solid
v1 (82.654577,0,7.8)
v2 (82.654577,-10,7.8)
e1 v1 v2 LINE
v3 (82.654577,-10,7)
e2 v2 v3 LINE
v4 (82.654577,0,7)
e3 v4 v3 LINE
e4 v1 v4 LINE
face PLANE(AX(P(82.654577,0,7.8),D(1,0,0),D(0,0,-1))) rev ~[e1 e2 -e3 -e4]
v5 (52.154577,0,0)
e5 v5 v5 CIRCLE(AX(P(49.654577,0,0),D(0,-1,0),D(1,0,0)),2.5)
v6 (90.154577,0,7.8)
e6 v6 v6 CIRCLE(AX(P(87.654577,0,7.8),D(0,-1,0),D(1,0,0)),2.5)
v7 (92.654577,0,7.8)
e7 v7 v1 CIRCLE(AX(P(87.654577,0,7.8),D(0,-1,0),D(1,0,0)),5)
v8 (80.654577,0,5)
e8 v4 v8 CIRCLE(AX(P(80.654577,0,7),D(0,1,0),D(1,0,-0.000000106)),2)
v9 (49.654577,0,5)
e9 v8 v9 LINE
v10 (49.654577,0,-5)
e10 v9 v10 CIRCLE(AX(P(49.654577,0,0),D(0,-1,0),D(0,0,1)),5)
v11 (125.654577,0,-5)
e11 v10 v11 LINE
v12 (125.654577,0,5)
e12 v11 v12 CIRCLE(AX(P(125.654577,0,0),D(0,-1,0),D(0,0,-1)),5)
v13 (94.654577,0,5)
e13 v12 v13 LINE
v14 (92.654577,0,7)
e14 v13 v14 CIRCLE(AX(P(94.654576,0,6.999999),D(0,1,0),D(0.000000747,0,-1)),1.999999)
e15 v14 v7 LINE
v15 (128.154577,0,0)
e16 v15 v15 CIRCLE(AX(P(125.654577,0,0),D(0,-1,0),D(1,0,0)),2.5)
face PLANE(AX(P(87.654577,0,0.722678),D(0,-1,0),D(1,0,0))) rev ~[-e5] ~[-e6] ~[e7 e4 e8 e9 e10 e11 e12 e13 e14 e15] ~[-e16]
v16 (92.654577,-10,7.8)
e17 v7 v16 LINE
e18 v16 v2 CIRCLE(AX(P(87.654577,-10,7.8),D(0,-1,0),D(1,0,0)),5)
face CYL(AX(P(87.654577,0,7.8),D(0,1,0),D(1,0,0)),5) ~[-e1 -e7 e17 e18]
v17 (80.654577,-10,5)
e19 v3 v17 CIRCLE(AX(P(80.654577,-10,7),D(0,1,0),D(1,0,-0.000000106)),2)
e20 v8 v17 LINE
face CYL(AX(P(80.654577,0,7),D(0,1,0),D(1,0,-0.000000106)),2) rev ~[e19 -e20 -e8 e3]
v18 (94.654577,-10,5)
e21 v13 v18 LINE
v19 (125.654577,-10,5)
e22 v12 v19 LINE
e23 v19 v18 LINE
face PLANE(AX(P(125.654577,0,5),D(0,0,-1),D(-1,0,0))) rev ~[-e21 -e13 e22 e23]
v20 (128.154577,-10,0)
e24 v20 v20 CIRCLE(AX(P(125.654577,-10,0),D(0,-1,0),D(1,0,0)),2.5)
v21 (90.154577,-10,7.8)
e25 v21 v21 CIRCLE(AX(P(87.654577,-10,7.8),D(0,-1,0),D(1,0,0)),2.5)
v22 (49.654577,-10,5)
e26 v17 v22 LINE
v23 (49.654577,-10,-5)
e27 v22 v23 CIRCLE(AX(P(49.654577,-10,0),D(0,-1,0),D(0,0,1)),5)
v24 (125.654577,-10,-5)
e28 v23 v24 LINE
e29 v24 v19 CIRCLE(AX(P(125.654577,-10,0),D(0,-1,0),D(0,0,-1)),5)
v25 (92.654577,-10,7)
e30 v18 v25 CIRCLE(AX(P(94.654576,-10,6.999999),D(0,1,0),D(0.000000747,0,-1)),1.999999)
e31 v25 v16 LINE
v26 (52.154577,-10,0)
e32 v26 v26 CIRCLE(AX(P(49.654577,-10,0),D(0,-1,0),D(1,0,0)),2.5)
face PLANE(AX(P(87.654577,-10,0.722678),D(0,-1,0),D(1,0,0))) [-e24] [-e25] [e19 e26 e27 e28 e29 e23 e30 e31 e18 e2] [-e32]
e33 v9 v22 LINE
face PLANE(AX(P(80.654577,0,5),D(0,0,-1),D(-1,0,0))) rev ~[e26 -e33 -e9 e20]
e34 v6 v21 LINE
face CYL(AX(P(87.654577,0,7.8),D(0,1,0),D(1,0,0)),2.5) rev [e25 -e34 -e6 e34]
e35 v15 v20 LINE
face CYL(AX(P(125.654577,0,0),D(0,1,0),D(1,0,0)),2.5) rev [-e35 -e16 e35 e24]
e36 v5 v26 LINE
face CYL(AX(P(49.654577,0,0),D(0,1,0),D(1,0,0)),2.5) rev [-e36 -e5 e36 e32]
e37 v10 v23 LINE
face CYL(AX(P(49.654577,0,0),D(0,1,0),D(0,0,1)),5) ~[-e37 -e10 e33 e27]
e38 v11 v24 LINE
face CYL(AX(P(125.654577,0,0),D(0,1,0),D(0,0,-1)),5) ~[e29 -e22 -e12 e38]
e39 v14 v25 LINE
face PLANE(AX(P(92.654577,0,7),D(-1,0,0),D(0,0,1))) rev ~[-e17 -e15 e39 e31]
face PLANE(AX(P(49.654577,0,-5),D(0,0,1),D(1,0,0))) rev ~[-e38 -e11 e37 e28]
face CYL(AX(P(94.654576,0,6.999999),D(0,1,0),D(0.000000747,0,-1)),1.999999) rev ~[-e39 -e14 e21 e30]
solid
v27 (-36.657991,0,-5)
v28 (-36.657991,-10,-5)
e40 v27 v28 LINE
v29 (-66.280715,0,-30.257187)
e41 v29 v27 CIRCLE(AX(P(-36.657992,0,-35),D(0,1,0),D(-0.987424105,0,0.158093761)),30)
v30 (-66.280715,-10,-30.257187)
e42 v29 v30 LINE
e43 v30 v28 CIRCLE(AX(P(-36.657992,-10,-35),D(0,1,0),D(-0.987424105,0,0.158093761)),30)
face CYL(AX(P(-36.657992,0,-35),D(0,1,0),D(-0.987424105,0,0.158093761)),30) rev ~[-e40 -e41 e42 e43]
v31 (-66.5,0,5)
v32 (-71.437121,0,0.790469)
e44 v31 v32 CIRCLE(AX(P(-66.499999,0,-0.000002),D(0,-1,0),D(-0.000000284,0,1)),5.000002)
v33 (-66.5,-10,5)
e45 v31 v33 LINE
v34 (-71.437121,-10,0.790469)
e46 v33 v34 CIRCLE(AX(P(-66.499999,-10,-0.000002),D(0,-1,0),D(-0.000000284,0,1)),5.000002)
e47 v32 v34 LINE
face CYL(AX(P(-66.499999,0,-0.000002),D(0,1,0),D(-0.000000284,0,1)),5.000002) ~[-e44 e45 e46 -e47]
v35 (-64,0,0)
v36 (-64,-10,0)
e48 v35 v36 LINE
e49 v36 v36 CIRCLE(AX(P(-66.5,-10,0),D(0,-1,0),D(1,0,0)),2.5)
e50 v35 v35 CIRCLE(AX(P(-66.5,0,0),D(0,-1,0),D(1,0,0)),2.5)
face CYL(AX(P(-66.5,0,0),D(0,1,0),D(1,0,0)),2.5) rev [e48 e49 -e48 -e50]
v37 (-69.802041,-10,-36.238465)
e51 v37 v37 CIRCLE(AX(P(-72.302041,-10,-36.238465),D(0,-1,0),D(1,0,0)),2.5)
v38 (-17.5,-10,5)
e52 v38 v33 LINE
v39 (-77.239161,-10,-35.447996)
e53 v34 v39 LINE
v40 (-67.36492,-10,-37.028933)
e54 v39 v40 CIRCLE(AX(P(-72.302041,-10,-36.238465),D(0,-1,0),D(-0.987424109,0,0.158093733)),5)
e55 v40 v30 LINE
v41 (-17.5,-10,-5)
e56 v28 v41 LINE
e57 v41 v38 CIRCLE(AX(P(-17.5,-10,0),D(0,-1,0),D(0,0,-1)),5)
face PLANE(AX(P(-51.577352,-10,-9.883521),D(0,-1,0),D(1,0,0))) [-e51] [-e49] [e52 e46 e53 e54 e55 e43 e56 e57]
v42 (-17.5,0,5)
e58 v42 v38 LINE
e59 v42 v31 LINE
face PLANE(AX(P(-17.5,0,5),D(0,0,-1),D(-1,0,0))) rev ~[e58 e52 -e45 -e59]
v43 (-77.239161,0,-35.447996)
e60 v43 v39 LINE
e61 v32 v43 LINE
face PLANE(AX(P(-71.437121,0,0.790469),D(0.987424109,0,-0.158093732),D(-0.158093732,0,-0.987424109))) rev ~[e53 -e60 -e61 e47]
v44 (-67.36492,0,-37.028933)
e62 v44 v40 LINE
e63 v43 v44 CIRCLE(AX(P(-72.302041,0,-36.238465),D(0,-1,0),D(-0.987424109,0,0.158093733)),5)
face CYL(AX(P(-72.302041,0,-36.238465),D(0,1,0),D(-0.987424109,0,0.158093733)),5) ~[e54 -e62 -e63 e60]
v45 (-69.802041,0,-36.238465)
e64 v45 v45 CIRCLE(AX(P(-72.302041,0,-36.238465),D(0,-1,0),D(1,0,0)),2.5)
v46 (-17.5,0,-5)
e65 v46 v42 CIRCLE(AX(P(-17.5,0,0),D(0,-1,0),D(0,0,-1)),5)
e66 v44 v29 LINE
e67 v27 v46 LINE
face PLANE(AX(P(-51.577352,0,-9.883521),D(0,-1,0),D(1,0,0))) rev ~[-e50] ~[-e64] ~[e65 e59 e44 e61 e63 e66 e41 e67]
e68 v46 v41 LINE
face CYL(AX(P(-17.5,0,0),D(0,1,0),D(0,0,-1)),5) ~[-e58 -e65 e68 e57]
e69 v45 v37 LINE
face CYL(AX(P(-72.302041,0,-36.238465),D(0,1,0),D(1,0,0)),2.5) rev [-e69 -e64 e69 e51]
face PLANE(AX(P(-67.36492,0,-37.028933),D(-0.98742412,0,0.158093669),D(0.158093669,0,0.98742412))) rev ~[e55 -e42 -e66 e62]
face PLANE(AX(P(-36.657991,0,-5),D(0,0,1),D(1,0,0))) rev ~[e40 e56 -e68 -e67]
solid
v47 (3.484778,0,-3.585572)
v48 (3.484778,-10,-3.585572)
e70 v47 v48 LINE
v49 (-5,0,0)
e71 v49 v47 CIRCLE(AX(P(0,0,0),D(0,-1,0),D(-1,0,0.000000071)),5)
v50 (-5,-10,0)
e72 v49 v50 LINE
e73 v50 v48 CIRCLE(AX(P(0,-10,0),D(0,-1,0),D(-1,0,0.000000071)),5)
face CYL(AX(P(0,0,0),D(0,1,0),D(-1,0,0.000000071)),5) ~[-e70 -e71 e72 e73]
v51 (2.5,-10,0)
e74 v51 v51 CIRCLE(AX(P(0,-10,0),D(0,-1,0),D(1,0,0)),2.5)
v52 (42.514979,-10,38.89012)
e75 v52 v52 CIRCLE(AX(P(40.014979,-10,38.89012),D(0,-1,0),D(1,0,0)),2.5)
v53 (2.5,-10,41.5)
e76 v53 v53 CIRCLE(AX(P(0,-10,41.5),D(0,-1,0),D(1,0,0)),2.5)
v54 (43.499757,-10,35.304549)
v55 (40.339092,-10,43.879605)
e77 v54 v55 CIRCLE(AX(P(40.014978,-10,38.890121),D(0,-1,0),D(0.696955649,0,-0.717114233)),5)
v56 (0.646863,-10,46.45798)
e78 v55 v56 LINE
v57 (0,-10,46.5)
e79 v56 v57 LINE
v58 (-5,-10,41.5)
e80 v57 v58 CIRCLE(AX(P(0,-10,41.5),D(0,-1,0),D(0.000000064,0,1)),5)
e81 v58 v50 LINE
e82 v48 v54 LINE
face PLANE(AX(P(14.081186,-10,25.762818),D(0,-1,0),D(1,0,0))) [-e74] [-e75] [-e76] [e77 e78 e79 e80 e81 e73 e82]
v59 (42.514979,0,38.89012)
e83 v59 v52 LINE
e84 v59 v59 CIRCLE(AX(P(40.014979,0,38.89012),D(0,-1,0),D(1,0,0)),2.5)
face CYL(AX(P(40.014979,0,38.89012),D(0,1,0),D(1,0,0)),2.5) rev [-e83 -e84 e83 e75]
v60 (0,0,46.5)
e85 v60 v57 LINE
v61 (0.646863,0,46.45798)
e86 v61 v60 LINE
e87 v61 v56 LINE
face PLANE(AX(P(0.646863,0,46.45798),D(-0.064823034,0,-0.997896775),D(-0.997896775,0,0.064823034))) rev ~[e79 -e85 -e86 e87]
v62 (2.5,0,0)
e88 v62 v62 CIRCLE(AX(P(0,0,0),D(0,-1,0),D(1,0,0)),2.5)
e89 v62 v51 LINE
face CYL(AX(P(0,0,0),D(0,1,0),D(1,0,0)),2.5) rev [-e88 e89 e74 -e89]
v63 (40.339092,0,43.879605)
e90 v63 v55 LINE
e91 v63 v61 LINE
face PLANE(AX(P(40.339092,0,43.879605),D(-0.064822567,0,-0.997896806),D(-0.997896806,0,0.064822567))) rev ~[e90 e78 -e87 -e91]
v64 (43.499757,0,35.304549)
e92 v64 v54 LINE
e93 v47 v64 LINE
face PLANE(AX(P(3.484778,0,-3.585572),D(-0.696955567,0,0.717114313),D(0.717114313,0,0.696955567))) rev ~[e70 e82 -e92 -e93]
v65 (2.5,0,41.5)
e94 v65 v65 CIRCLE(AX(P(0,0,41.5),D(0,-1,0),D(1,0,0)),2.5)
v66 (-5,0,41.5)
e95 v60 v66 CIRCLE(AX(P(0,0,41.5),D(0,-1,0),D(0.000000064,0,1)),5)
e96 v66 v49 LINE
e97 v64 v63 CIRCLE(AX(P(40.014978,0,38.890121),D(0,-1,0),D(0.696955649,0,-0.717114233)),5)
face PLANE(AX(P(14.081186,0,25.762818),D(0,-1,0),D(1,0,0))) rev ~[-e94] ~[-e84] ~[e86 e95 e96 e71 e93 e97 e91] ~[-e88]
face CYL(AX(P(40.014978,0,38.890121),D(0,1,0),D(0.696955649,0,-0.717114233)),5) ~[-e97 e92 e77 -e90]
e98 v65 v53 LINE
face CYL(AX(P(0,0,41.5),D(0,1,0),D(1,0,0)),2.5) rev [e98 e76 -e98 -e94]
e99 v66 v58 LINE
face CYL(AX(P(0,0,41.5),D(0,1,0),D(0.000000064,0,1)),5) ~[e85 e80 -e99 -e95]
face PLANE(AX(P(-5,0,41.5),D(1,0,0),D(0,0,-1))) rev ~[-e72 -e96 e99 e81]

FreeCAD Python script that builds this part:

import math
import FreeCAD as App
import Part
import Sketcher
from FreeCAD import Vector

doc = App.newDocument("Part")
body = doc.addObject("PartDesign::Body", "Body")

# Sketch on XZ plane
sketch1 = body.newObject("Sketcher::SketchObject", "Sketch")
sketch1.AttachmentSupport = (doc.getObject("XZ_Plane"), [""])
sketch1.MapMode = "FlatFace"
sketch1.addGeometry([
    Part.LineSegment(Vector(40.3, 43.9, 0), Vector(0.6, 46.5, 0)),  # 0
    Part.LineSegment(Vector(0.6, 46.5, 0), Vector(0, 46.5, 0)),  # 1
    Part.ArcOfCircle(Part.Circle(Vector(0, 41.5, 0), Vector(0, 0, 1), 5), math.radians(90), math.radians(180)),  # 2
    Part.LineSegment(Vector(-5, 41.5, 0), Vector(-5, 0, 0)),  # 3
    Part.ArcOfCircle(Part.Circle(Vector(0, 0, 0), Vector(0, 0, 1), 5), math.radians(180), math.radians(314)),  # 4
    Part.LineSegment(Vector(3.5, -3.6, 0), Vector(43.5, 35.3, 0)),  # 5
    Part.ArcOfCircle(Part.Circle(Vector(40, 38.9, 0), Vector(0, 0, 1), 5), math.radians(-46), math.radians(86)),  # 6
    Part.Circle(Vector(0, 0, 0), Vector(0, 0, 1), 2.5),  # 7
    Part.Circle(Vector(0, 41.5, 0), Vector(0, 0, 1), 2.5),  # 8
    Part.Circle(Vector(40, 38.9, 0), Vector(0, 0, 1), 2.5),  # 9
], False)
sketch1.addConstraint([
    Sketcher.Constraint("Coincident", 0, 2, 1, 1),
    Sketcher.Constraint("Coincident", 1, 2, 2, 1),
    Sketcher.Constraint("Tangent", 2, 2, 3, 1),
    Sketcher.Constraint("Tangent", 3, 2, 4, 1),
    Sketcher.Constraint("Tangent", 4, 2, 5, 1),
    Sketcher.Constraint("Tangent", 5, 2, 6, 1),
    Sketcher.Constraint("Tangent", 6, 2, 0, 1),
    Sketcher.Constraint("Vertical", 3),
    Sketcher.Constraint("Coincident", 4, 3, -1, 1),
    Sketcher.Constraint("Coincident", 7, 3, -1, 1),
    Sketcher.Constraint("Coincident", 8, 3, 2, 3),
    Sketcher.Constraint("Coincident", 9, 3, 6, 3),
    Sketcher.Constraint("Equal", 2, 4),
    Sketcher.Constraint("Equal", 4, 6),
    Sketcher.Constraint("Equal", 7, 8),
    Sketcher.Constraint("Equal", 8, 9),
    Sketcher.Constraint("PointOnObject", 1, 2, -2),
    Sketcher.Constraint("Parallel", 0, 1),
    Sketcher.Constraint("Diameter", 7, 5.0),
    Sketcher.Constraint("Radius", 2, 5.0),
    Sketcher.Constraint("DistanceY", 3, 2, 3, 1, 41.5),
    Sketcher.Constraint("Distance", 5, 55.8),
    Sketcher.Constraint("DistanceX", -1, 1, 6, 3, 40.014978),
    Sketcher.Constraint("DistanceY", -1, 1, 0, 2, 46.45798),
])
pad1 = body.newObject("PartDesign::Pad", "Pad")
pad1.Profile = sketch1
pad1.Length = 10
body2 = doc.addObject("PartDesign::Body", "Body001")

# Sketch on XZ plane
sketch2 = body2.newObject("Sketcher::SketchObject", "Sketch001")
sketch2.AttachmentSupport = (doc.getObject("XZ_Plane001"), [""])
sketch2.MapMode = "FlatFace"
sketch2.addGeometry([
    Part.LineSegment(Vector(-36.7, -5, 0), Vector(-17.5, -5, 0)),  # 0
    Part.ArcOfCircle(Part.Circle(Vector(-17.5, 0, 0), Vector(0, 0, 1), 5), math.radians(-90), math.radians(90)),  # 1
    Part.LineSegment(Vector(-17.5, 5, 0), Vector(-66.5, 5, 0)),  # 2
    Part.ArcOfCircle(Part.Circle(Vector(-66.5, 0, 0), Vector(0, 0, 1), 5), math.radians(90), math.radians(171)),  # 3
    Part.LineSegment(Vector(-71.4, 0.8, 0), Vector(-77.2, -35.4, 0)),  # 4
    Part.ArcOfCircle(Part.Circle(Vector(-72.3, -36.2, 0), Vector(0, 0, 1), 5), math.radians(171), math.radians(351)),  # 5
    Part.LineSegment(Vector(-67.4, -37, 0), Vector(-66.3, -30.3, 0)),  # 6
    Part.ArcOfCircle(Part.Circle(Vector(-36.7, -35, 0), Vector(0, 0, 1), 30), math.radians(90), math.radians(171)),  # 7
    Part.Circle(Vector(-72.3, -36.2, 0), Vector(0, 0, 1), 2.5),  # 8
    Part.Circle(Vector(-66.5, 0, 0), Vector(0, 0, 1), 2.5),  # 9
], False)
sketch2.addConstraint([
    Sketcher.Constraint("Tangent", 0, 2, 1, 1),
    Sketcher.Constraint("Tangent", 1, 2, 2, 1),
    Sketcher.Constraint("Tangent", 2, 2, 3, 1),
    Sketcher.Constraint("Tangent", 3, 2, 4, 1),
    Sketcher.Constraint("Tangent", 4, 2, 5, 1),
    Sketcher.Constraint("Tangent", 5, 2, 6, 1),
    Sketcher.Constraint("Tangent", 6, 2, 7, 2),
    Sketcher.Constraint("Tangent", 7, 1, 0, 1),
    Sketcher.Constraint("Horizontal", 0),
    Sketcher.Constraint("Horizontal", 2),
    Sketcher.Constraint("Coincident", 8, 3, 5, 3),
    Sketcher.Constraint("Coincident", 9, 3, 3, 3),
    Sketcher.Constraint("Equal", 1, 5),
    Sketcher.Constraint("Equal", 8, 9),
    Sketcher.Constraint("PointOnObject", 1, 3, -1),
    Sketcher.Constraint("PointOnObject", 9, 3, -1),
    Sketcher.Constraint("Parallel", 4, 6),
    Sketcher.Constraint("Diameter", 8, 5.0),
    Sketcher.Constraint("Radius", 1, 5.0),
    Sketcher.Constraint("Radius", 7, 30.0),
    Sketcher.Constraint("DistanceX", 2, 2, 2, 1, 49.0),
    Sketcher.Constraint("Distance", 4, 36.7),
    Sketcher.Constraint("DistanceX", 1, 3, -1, 1, 17.5),
    Sketcher.Constraint("DistanceX", 0, 1, 0, 2, 19.157991),
])
pad2 = body2.newObject("PartDesign::Pad", "Pad001")
pad2.Profile = sketch2
pad2.Length = 10
body3 = doc.addObject("PartDesign::Body", "Body002")

# Sketch on XZ plane
sketch3 = body3.newObject("Sketcher::SketchObject", "Sketch002")
sketch3.AttachmentSupport = (doc.getObject("XZ_Plane002"), [""])
sketch3.MapMode = "FlatFace"
sketch3.addGeometry([
    Part.LineSegment(Vector(80.7, 5, 0), Vector(49.7, 5, 0)),  # 0
    Part.ArcOfCircle(Part.Circle(Vector(49.7, 0, 0), Vector(0, 0, 1), 5), math.radians(90), math.radians(270)),  # 1
    Part.LineSegment(Vector(49.7, -5, 0), Vector(125.7, -5, 0)),  # 2
    Part.ArcOfCircle(Part.Circle(Vector(125.7, 0, 0), Vector(0, 0, 1), 5), math.radians(-90), math.radians(90)),  # 3
    Part.LineSegment(Vector(125.7, 5, 0), Vector(94.7, 5, 0)),  # 4
    Part.ArcOfCircle(Part.Circle(Vector(94.7, 7, 0), Vector(0, 0, 1), 2), math.radians(180), math.radians(270)),  # 5
    Part.LineSegment(Vector(92.7, 7, 0), Vector(92.7, 7.8, 0)),  # 6
    Part.ArcOfCircle(Part.Circle(Vector(87.7, 7.8, 0), Vector(0, 0, 1), 5), math.radians(0), math.radians(180)),  # 7
    Part.LineSegment(Vector(82.7, 7.8, 0), Vector(82.7, 7, 0)),  # 8
    Part.ArcOfCircle(Part.Circle(Vector(80.7, 7, 0), Vector(0, 0, 1), 2), math.radians(-90), math.radians(0)),  # 9
    Part.Circle(Vector(49.7, 0, 0), Vector(0, 0, 1), 2.5),  # 10
    Part.Circle(Vector(125.7, 0, 0), Vector(0, 0, 1), 2.5),  # 11
    Part.Circle(Vector(87.7, 7.8, 0), Vector(0, 0, 1), 2.5),  # 12
], False)
sketch3.addConstraint([
    Sketcher.Constraint("Tangent", 0, 2, 1, 1),
    Sketcher.Constraint("Tangent", 1, 2, 2, 1),
    Sketcher.Constraint("Tangent", 2, 2, 3, 1),
    Sketcher.Constraint("Tangent", 3, 2, 4, 1),
    Sketcher.Constraint("Tangent", 4, 2, 5, 2),
    Sketcher.Constraint("Tangent", 5, 1, 6, 1),
    Sketcher.Constraint("Tangent", 6, 2, 7, 1),
    Sketcher.Constraint("Tangent", 7, 2, 8, 1),
    Sketcher.Constraint("Tangent", 8, 2, 9, 2),
    Sketcher.Constraint("Tangent", 9, 1, 0, 1),
    Sketcher.Constraint("Horizontal", 0),
    Sketcher.Constraint("Horizontal", 2),
    Sketcher.Constraint("Horizontal", 4),
    Sketcher.Constraint("Vertical", 6),
    Sketcher.Constraint("Vertical", 8),
    Sketcher.Constraint("Coincident", 10, 3, 1, 3),
    Sketcher.Constraint("Coincident", 11, 3, 3, 3),
    Sketcher.Constraint("Coincident", 12, 3, 7, 3),
    Sketcher.Constraint("Equal", 1, 3),
    Sketcher.Constraint("Equal", 3, 7),
    Sketcher.Constraint("Equal", 5, 9),
    Sketcher.Constraint("Equal", 10, 11),
    Sketcher.Constraint("Equal", 11, 12),
    Sketcher.Constraint("PointOnObject", 1, 3, -1),
    Sketcher.Constraint("Equal", 0, 4),
    Sketcher.Constraint("Diameter", 10, 5.0),
    Sketcher.Constraint("Radius", 1, 5.0),
    Sketcher.Constraint("Radius", 5, 1.999999),
    Sketcher.Constraint("DistanceX", 0, 2, 0, 1, 31.0),
    Sketcher.Constraint("DistanceY", 6, 1, 6, 2, 0.8),
    Sketcher.Constraint("DistanceX", -1, 1, 1, 3, 49.654577),
])
pad3 = body3.newObject("PartDesign::Pad", "Pad002")
pad3.Profile = sketch3
pad3.Length = 10

doc.recompute()
